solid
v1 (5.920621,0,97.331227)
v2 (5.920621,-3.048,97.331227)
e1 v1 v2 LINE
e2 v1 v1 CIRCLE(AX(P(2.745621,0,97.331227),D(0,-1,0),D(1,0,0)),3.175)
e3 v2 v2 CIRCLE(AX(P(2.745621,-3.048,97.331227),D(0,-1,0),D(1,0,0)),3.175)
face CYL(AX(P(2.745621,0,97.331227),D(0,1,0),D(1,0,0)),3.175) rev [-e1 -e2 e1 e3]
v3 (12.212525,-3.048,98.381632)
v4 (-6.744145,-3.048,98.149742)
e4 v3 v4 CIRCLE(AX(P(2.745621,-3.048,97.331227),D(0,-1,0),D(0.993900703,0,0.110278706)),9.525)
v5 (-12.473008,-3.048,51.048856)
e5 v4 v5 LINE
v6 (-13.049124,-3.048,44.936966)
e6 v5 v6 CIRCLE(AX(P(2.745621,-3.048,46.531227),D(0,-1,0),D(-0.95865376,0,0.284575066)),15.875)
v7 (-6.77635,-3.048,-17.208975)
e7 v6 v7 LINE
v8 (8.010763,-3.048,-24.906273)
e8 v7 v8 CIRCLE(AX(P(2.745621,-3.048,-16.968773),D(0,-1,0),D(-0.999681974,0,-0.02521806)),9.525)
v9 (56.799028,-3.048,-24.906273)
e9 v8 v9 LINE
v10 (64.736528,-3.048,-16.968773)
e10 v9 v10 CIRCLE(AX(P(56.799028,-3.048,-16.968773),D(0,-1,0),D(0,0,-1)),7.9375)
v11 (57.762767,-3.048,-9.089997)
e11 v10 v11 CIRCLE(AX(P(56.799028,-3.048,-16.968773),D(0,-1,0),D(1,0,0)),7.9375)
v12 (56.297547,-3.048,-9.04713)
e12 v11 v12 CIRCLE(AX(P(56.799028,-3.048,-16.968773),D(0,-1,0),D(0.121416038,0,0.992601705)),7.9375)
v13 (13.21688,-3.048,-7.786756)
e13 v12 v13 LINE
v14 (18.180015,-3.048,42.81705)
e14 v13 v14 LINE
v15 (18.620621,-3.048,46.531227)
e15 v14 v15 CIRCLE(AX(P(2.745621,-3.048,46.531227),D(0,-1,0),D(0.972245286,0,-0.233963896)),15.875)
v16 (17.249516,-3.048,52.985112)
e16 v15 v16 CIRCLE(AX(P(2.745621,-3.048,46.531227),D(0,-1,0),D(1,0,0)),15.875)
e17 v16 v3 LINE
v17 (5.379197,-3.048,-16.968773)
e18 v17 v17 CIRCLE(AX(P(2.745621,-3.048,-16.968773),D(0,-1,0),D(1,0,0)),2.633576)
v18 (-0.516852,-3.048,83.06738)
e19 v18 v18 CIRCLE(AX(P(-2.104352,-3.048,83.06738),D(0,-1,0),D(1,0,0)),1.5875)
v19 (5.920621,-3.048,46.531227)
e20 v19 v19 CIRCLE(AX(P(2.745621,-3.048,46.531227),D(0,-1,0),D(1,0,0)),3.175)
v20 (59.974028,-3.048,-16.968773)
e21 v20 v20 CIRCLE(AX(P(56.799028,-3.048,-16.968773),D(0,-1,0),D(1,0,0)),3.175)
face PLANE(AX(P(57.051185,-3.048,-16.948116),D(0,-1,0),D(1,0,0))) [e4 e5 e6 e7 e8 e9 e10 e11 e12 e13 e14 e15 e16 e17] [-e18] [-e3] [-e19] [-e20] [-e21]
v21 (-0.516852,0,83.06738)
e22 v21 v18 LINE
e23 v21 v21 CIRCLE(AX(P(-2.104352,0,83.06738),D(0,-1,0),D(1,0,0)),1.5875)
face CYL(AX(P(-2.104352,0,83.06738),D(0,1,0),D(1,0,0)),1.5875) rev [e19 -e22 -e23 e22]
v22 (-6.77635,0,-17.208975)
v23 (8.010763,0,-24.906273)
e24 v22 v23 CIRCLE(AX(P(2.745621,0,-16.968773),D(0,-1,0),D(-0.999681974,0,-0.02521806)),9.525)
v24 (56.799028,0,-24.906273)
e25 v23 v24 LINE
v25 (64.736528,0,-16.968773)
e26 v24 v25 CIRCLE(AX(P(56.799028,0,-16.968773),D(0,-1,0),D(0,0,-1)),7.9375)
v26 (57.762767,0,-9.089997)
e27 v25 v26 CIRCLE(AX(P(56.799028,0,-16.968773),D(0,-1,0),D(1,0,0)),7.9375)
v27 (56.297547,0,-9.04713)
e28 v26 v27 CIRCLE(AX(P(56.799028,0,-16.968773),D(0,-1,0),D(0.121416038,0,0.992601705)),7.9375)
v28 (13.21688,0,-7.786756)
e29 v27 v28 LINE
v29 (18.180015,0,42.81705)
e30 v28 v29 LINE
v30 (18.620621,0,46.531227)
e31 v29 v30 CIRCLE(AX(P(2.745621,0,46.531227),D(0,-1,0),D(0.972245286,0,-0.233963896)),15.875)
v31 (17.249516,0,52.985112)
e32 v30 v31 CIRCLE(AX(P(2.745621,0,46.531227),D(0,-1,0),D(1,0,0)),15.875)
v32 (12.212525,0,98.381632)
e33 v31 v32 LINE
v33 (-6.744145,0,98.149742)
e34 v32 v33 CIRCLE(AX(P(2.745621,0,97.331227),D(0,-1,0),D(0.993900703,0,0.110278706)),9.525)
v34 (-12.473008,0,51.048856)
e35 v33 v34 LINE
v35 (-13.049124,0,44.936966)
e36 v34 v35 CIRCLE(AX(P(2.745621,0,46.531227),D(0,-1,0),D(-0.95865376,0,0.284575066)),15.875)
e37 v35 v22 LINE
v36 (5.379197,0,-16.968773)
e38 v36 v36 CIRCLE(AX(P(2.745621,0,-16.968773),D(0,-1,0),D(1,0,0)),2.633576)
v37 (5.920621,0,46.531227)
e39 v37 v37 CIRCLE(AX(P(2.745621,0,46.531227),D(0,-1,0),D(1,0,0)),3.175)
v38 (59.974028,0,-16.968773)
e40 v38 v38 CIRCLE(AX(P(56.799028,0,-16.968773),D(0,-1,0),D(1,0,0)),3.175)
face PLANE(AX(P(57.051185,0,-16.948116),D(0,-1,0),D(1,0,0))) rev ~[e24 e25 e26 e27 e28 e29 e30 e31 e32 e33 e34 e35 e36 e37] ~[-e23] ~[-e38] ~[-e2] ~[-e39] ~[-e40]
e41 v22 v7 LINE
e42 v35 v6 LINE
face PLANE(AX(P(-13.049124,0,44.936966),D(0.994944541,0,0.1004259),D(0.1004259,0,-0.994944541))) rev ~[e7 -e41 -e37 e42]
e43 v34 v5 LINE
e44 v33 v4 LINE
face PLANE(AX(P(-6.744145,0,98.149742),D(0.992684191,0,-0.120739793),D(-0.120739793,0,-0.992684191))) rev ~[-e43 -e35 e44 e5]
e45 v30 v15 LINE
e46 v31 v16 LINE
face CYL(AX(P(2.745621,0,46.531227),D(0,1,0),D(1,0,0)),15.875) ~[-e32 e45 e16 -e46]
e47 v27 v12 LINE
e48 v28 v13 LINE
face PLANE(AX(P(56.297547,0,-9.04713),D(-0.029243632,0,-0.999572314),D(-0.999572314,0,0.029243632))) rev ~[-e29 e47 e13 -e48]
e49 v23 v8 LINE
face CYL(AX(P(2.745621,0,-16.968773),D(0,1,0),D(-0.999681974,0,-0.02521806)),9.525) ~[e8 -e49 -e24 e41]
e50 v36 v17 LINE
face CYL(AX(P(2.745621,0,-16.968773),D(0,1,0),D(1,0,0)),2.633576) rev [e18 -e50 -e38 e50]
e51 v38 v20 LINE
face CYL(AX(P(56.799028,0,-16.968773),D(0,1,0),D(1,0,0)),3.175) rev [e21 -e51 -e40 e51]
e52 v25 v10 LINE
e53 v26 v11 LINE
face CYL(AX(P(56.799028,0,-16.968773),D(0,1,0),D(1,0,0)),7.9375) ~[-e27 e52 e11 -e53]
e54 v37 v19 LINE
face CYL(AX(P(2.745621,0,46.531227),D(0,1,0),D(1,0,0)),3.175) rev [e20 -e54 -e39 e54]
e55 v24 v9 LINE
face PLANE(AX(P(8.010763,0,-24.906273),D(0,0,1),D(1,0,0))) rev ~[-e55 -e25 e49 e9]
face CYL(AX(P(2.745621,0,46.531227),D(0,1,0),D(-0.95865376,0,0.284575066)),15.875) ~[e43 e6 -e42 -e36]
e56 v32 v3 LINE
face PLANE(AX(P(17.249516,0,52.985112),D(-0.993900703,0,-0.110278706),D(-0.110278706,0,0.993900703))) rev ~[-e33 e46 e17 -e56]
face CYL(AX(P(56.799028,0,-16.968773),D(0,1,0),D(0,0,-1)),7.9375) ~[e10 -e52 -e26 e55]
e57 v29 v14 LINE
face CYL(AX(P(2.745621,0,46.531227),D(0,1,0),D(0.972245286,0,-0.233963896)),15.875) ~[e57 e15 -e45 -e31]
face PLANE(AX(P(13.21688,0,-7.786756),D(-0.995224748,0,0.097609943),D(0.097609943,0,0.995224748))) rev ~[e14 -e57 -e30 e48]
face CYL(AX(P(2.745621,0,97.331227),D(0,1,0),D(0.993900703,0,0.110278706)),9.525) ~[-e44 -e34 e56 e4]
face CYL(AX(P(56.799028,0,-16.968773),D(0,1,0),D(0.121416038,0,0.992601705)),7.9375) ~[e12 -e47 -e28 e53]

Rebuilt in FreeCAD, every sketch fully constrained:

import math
import FreeCAD as App
import Part
import Sketcher
from FreeCAD import Vector
Q = App.Units.Quantity

doc = App.newDocument("Part")
params = doc.addObject("Spreadsheet::Sheet", "Params")
for row, (alias, value) in enumerate([
    ("sketch1_diameter", "0.25 in"),
    ("sketch1_diameter2", "0.125 in"),
    ("sketch1_radius", "0.625 in"),
    ("sketch1_radius2", "0.375 in"),
    ("sketch1_radius3", "0.3125 in"),
    ("pad1_length", "0.12 in"),
], start=1):
    params.set(f"A{row}", alias)
    params.set(f"B{row}", "=" + value)
    params.setAlias(f"B{row}", alias)

body = doc.addObject("PartDesign::Body", "Body")

sketch1 = body.newObject("Sketcher::SketchObject", "Sketch")
sketch1.AttachmentSupport = (doc.getObject("XZ_Plane"), [""])
sketch1.MapMode = "FlatFace"
sketch1.addGeometry([
    Part.LineSegment(Vector(56.3, -9, 0), Vector(13.2, -7.8, 0)),
    Part.LineSegment(Vector(13.2, -7.8, 0), Vector(18.2, 42.8, 0)),
    Part.ArcOfCircle(Part.Circle(Vector(2.7, 46.5, 0), Vector(0, 0, 1), 15.9), math.radians(-13.53), math.radians(0)),
    Part.ArcOfCircle(Part.Circle(Vector(2.7, 46.5, 0), Vector(0, 0, 1), 15.9), math.radians(0), math.radians(24)),
    Part.LineSegment(Vector(17.2, 53, 0), Vector(12.2, 98.4, 0)),
    Part.ArcOfCircle(Part.Circle(Vector(2.7, 97.3, 0), Vector(0, 0, 1), 9.5), math.radians(6), math.radians(175)),
    Part.LineSegment(Vector(-6.7, 98.1, 0), Vector(-12.5, 51, 0)),
    Part.ArcOfCircle(Part.Circle(Vector(2.7, 46.5, 0), Vector(0, 0, 1), 15.9), math.radians(163), math.radians(186)),
    Part.LineSegment(Vector(-13, 44.9, 0), Vector(-6.8, -17.2, 0)),
    Part.ArcOfCircle(Part.Circle(Vector(2.7, -17, 0), Vector(0, 0, 1), 9.5), math.radians(-179), math.radians(-56)),
    Part.LineSegment(Vector(8, -24.9, 0), Vector(56.8, -24.9, 0)),
    Part.ArcOfCircle(Part.Circle(Vector(56.8, -17, 0), Vector(0, 0, 1), 7.9), math.radians(-90), math.radians(0)),
    Part.ArcOfCircle(Part.Circle(Vector(56.8, -17, 0), Vector(0, 0, 1), 7.9), math.radians(0), math.radians(83)),
    Part.ArcOfCircle(Part.Circle(Vector(56.8, -17, 0), Vector(0, 0, 1), 7.9), math.radians(83.03), math.radians(93.62)),
    Part.Circle(Vector(2.7, -17, 0), Vector(0, 0, 1), 2.6),
    Part.Circle(Vector(56.8, -17, 0), Vector(0, 0, 1), 3.2),
    Part.Circle(Vector(2.7, 46.5, 0), Vector(0, 0, 1), 3.2),
    Part.Circle(Vector(-2.1, 83.1, 0), Vector(0, 0, 1), 1.6),
    Part.Circle(Vector(2.7, 97.3, 0), Vector(0, 0, 1), 3.2),
], False)
sketch1.addConstraint([
    Sketcher.Constraint("Coincident", 0, 2, 1, 1),
    Sketcher.Constraint("Coincident", 1, 2, 2, 1),
    Sketcher.Constraint("Tangent", 2, 2, 3, 1),
    Sketcher.Constraint("Coincident", 3, 2, 4, 1),
    Sketcher.Constraint("Tangent", 4, 2, 5, 1),
    Sketcher.Constraint("Coincident", 5, 2, 6, 1),
    Sketcher.Constraint("Coincident", 6, 2, 7, 1),
    Sketcher.Constraint("Tangent", 7, 2, 8, 1),
    Sketcher.Constraint("Coincident", 8, 2, 9, 1),
    Sketcher.Constraint("Coincident", 9, 2, 10, 1),
    Sketcher.Constraint("Tangent", 10, 2, 11, 1),
    Sketcher.Constraint("Tangent", 11, 2, 12, 1),
    Sketcher.Constraint("Tangent", 12, 2, 13, 1),
    Sketcher.Constraint("Coincident", 13, 2, 0, 1),
    Sketcher.Constraint("Horizontal", 10),
    Sketcher.Constraint("Coincident", 7, 3, 2, 3),
    Sketcher.Constraint("Coincident", 13, 3, 11, 3),
    Sketcher.Constraint("Coincident", 14, 3, 9, 3),
    Sketcher.Constraint("Coincident", 15, 3, 11, 3),
    Sketcher.Constraint("Coincident", 16, 3, 2, 3),
    Sketcher.Constraint("Coincident", 18, 3, 5, 3),
    Sketcher.Constraint("Equal", 2, 3),
    Sketcher.Constraint("Equal", 3, 7),
    Sketcher.Constraint("Equal", 5, 9),
    Sketcher.Constraint("Equal", 15, 16),
    Sketcher.Constraint("Equal", 16, 18),
    Sketcher.Constraint("Horizontal", 9, 3, 11, 3),
    Sketcher.Constraint("Horizontal", 16, 3, 2, 2),
    Sketcher.Constraint("Horizontal", 15, 3, 11, 2),
    Sketcher.Constraint("Vertical", 3, 3, 5, 3),
    Sketcher.Constraint("Vertical", 7, 3, 9, 3),
    Sketcher.Constraint("Diameter", 15, Q("0.25 in")),
    Sketcher.Constraint("Diameter", 17, Q("0.125 in")),
    Sketcher.Constraint("Radius", 2, Q("0.625 in")),
    Sketcher.Constraint("Radius", 5, Q("0.375 in")),
    Sketcher.Constraint("Radius", 11, Q("0.3125 in")),
    Sketcher.Constraint("DistanceY", 2, 3, 5, 3, Q("2 in")),
    Sketcher.Constraint("DistanceY", 9, 3, 2, 3, Q("2.5 in")),
    Sketcher.Constraint("Diameter", 14, 5.267152),
    Sketcher.Constraint("Distance", 0, 43.0991),
    Sketcher.Constraint("DistanceX", 3, 2, 1, 2, 0.930498),
    Sketcher.Constraint("Distance", 1, 50.846612),
    Sketcher.Constraint("DistanceX", 10, 1, 10, 2, 48.788265),
    Sketcher.Constraint("DistanceX", -1, 1, 2, 3, 2.745621),
    Sketcher.Constraint("DistanceX", 17, 3, -1, 1, 2.104352),
    Sketcher.Constraint("DistanceY", -1, 1, 17, 3, 83.06738),
    Sketcher.Constraint("DistanceX", -1, 1, 0, 2, 13.21688),
    Sketcher.Constraint("DistanceY", -1, 1, 1, 2, 42.81705),
    Sketcher.Constraint("DistanceY", -1, 1, 4, 2, 98.381632),
    Sketcher.Constraint("DistanceY", -1, 1, 5, 2, 98.149742),
    Sketcher.Constraint("DistanceX", 8, 2, -1, 1, 6.77635),
    Sketcher.Constraint("DistanceX", 6, 2, 2, 3, 15.218628),
    Sketcher.Constraint("DistanceX", 11, 3, 12, 2, 0.96374),
])
sketch1.setExpression("Constraints[31]", "Params.sketch1_diameter")
sketch1.setExpression("Constraints[32]", "Params.sketch1_diameter2")
sketch1.setExpression("Constraints[33]", "Params.sketch1_radius")
sketch1.setExpression("Constraints[34]", "Params.sketch1_radius2")
sketch1.setExpression("Constraints[35]", "Params.sketch1_radius3")
pad1 = body.newObject("PartDesign::Pad", "Pad")
pad1.Profile = sketch1
pad1.setExpression("Length", "Params.pad1_length")

doc.recompute()
